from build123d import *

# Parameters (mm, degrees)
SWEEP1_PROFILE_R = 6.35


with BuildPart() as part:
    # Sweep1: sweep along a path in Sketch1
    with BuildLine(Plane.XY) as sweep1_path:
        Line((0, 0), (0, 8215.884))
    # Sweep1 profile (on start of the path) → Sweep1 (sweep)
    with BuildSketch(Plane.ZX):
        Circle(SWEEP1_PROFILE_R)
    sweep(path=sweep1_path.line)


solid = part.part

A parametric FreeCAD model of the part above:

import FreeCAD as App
import Part
import Sketcher
Q = App.Units.Quantity

doc = App.newDocument("Part")
body = doc.addObject("PartDesign::Body", "Body")

# Sketch on XZ plane
sketch1 = body.newObject("Sketcher::SketchObject", "Sketch")
sketch1.AttachmentSupport = (doc.getObject("XZ_Plane"), [""])
sketch1.MapMode = "FlatFace"
sketch1.addGeometry(Part.Circle(App.Vector(0, 0, 0), App.Vector(0, 0, 1), 6), False)
sketch1.addConstraint(Sketcher.Constraint("Coincident", 0, 3, -1, 1))
sketch1.addConstraint(Sketcher.Constraint("Diameter", 0, Q("0.5 in")))

# Sketch on XY plane
sketch2 = body.newObject("Sketcher::SketchObject", "Sketch001")
sketch2.AttachmentSupport = (doc.getObject("XY_Plane"), [""])
sketch2.MapMode = "FlatFace"
sketch2.addGeometry(Part.LineSegment(App.Vector(0, 0, 0), App.Vector(0, 8216, 0)), False)
sketch2.addConstraint(Sketcher.Constraint("Vertical", 0))
sketch2.addConstraint(Sketcher.Constraint("Coincident", 0, 1, -1, 1))
sketch2.addConstraint(Sketcher.Constraint("DistanceY", 0, 1, 0, 2, Q("323.46 in")))
doc.recompute()

additivepipe = body.newObject("PartDesign::AdditivePipe", "AdditivePipe")
additivepipe.Profile = sketch1
additivepipe.Spine = (sketch2, ["Edge1"])

doc.recompute()
